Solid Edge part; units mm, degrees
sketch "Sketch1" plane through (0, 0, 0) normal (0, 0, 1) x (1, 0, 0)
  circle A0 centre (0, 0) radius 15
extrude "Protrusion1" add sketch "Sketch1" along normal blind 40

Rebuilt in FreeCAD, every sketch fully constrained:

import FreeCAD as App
import Part
import Sketcher

V = App.Vector
Q = App.Units.Quantity

doc = App.newDocument("Part")
body = doc.addObject("PartDesign::Body", "Body")

sketch1 = doc.addObject("Sketcher::SketchObject", "Sketch")
body.addObject(sketch1)
sketch1.AttachmentSupport = (doc.XY_Plane, [""])
sketch1.MapMode = "FlatFace"
sketch1.addGeometry(Part.Circle(V(0, 0, 0), V(0, 0, 1), 15), False)
sketch1.addConstraint(Sketcher.Constraint("Coincident", 0, 3, -1, 1))
sketch1.addConstraint(Sketcher.Constraint("Diameter", 0, Q("30 mm")))
pad1 = doc.addObject("PartDesign::Pad", "Pad")
body.addObject(pad1)
pad1.Profile = sketch1
pad1.Length = 40

doc.recompute()
